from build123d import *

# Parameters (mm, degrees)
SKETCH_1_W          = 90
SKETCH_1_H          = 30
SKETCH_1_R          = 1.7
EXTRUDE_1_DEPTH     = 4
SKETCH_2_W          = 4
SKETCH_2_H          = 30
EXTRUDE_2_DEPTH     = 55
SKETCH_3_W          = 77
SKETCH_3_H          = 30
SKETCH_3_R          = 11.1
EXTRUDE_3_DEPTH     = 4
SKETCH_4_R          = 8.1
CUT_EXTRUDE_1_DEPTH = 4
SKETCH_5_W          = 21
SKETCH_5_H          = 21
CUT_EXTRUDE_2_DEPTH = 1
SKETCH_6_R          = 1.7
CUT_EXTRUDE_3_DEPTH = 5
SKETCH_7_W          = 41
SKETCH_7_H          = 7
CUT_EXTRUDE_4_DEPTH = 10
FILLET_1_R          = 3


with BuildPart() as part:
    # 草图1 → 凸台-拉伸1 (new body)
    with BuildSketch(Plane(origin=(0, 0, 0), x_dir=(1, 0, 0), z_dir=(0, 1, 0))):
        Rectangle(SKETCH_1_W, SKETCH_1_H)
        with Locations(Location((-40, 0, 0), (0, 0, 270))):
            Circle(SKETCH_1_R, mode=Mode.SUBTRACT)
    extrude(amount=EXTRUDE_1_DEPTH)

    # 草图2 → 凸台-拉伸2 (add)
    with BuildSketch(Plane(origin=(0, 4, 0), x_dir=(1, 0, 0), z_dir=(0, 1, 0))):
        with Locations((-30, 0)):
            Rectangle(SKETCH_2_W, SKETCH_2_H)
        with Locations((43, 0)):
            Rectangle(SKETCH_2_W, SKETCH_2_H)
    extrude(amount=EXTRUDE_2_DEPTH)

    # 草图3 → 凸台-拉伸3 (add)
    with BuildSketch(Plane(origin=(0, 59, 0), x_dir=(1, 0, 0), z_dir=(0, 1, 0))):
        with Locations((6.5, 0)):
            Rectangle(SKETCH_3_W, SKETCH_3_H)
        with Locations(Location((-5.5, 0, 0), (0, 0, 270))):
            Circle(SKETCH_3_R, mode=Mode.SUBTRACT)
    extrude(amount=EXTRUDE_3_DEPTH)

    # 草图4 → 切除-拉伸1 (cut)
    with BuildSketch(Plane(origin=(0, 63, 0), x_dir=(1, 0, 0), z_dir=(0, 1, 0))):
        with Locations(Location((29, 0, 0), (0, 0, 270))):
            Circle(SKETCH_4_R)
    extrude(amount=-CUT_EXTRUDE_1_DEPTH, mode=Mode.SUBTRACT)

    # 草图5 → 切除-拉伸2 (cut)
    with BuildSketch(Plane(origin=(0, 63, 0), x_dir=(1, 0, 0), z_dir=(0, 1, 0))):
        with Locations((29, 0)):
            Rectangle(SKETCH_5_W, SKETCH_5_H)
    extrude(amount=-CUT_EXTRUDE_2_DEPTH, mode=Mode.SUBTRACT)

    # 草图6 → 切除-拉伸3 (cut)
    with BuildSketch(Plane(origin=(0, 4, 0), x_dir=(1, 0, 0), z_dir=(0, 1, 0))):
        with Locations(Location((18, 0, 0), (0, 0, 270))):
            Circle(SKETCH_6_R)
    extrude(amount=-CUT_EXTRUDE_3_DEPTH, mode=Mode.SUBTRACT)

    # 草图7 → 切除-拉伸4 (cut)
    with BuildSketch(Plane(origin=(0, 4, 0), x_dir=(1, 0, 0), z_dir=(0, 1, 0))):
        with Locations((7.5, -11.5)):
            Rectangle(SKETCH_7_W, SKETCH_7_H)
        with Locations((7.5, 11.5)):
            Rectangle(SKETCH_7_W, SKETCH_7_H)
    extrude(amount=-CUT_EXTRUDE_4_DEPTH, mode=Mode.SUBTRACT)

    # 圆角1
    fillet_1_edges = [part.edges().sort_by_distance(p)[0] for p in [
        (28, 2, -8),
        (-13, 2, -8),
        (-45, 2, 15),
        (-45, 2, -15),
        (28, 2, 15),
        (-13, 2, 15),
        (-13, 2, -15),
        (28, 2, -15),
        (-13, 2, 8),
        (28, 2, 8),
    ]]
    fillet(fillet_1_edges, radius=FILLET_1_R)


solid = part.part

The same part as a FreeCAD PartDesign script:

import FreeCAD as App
import Part
import Sketcher

V = App.Vector
Q = App.Units.Quantity


def edges_at(feature, points):
    """Names of the edges that pass closest to the given points."""
    edges = feature.Shape.Edges
    near = lambda p: min(range(len(edges)), key=lambda i: edges[i].distToShape(Part.Vertex(*p))[0])
    return sorted({f"Edge{near(p) + 1}" for p in points})

doc = App.newDocument("Part")
body = doc.addObject("PartDesign::Body", "Body")

sketch1 = doc.addObject("Sketcher::SketchObject", "Sketch")
body.addObject(sketch1)
sketch1.AttachmentSupport = (doc.XZ_Plane, [""])
sketch1.MapMode = "FlatFace"
sketch1.addGeometry(Part.LineSegment(V(-45, -15, 0), V(-45, 15, 0)), False)
sketch1.addGeometry(Part.LineSegment(V(-45, 15, 0), V(45, 15, 0)), False)
sketch1.addGeometry(Part.LineSegment(V(45, 15, 0), V(45, -15, 0)), False)
sketch1.addGeometry(Part.LineSegment(V(45, -15, 0), V(-45, -15, 0)), False)
sketch1.addGeometry(Part.Circle(V(-40, 0, 0), V(0, 0, 1), 1.7), False)
sketch1.addConstraint(Sketcher.Constraint("Coincident", 0, 2, 1, 1))
sketch1.addConstraint(Sketcher.Constraint("Coincident", 1, 2, 2, 1))
sketch1.addConstraint(Sketcher.Constraint("Coincident", 2, 2, 3, 1))
sketch1.addConstraint(Sketcher.Constraint("Coincident", 3, 2, 0, 1))
sketch1.addConstraint(Sketcher.Constraint("Vertical", 0))
sketch1.addConstraint(Sketcher.Constraint("Horizontal", 1))
sketch1.addConstraint(Sketcher.Constraint("Vertical", 2))
sketch1.addConstraint(Sketcher.Constraint("Horizontal", 3))
sketch1.addConstraint(Sketcher.Constraint("Symmetric", 0, 2, 2, 2, -1, 1))
sketch1.addConstraint(Sketcher.Constraint("PointOnObject", 4, 3, -1))
sketch1.addConstraint(Sketcher.Constraint("Diameter", 4, Q("3.4 mm")))
sketch1.addConstraint(Sketcher.Constraint("DistanceX", 1, 1, 1, 2, Q("90 mm")))
sketch1.addConstraint(Sketcher.Constraint("DistanceY", 0, 1, 0, 2, Q("30 mm")))
sketch1.addConstraint(Sketcher.Constraint("DistanceX", 4, 3, -1, 1, Q("40 mm")))
pad1 = doc.addObject("PartDesign::Pad", "Pad")
body.addObject(pad1)
pad1.Profile = sketch1
pad1.Length = 4
pad1.Reversed = True

sketch2 = doc.addObject("Sketcher::SketchObject", "Sketch001")
body.addObject(sketch2)
sketch2.AttachmentSupport = (doc.XZ_Plane, [""])
sketch2.MapMode = "FlatFace"
sketch2.AttachmentOffset = App.Placement(V(0, 0, -4), App.Rotation())
sketch2.addGeometry(Part.LineSegment(V(-32, -15, 0), V(-32, 15, 0)), False)
sketch2.addGeometry(Part.LineSegment(V(-32, 15, 0), V(-28, 15, 0)), False)
sketch2.addGeometry(Part.LineSegment(V(-28, 15, 0), V(-28, -15, 0)), False)
sketch2.addGeometry(Part.LineSegment(V(-28, -15, 0), V(-32, -15, 0)), False)
sketch2.addGeometry(Part.LineSegment(V(41, -15, 0), V(41, 15, 0)), False)
sketch2.addGeometry(Part.LineSegment(V(41, 15, 0), V(45, 15, 0)), False)
sketch2.addGeometry(Part.LineSegment(V(45, 15, 0), V(45, -15, 0)), False)
sketch2.addGeometry(Part.LineSegment(V(45, -15, 0), V(41, -15, 0)), False)
sketch2.addConstraint(Sketcher.Constraint("Coincident", 0, 2, 1, 1))
sketch2.addConstraint(Sketcher.Constraint("Coincident", 1, 2, 2, 1))
sketch2.addConstraint(Sketcher.Constraint("Coincident", 2, 2, 3, 1))
sketch2.addConstraint(Sketcher.Constraint("Coincident", 3, 2, 0, 1))
sketch2.addConstraint(Sketcher.Constraint("Coincident", 4, 2, 5, 1))
sketch2.addConstraint(Sketcher.Constraint("Coincident", 5, 2, 6, 1))
sketch2.addConstraint(Sketcher.Constraint("Coincident", 6, 2, 7, 1))
sketch2.addConstraint(Sketcher.Constraint("Coincident", 7, 2, 4, 1))
sketch2.addConstraint(Sketcher.Constraint("Vertical", 0))
sketch2.addConstraint(Sketcher.Constraint("Horizontal", 1))
sketch2.addConstraint(Sketcher.Constraint("Vertical", 2))
sketch2.addConstraint(Sketcher.Constraint("Horizontal", 3))
sketch2.addConstraint(Sketcher.Constraint("Vertical", 4))
sketch2.addConstraint(Sketcher.Constraint("Horizontal", 5))
sketch2.addConstraint(Sketcher.Constraint("Vertical", 6))
sketch2.addConstraint(Sketcher.Constraint("Horizontal", 7))
sketch2.addConstraint(Sketcher.Constraint("Horizontal", 1, 2, 4, 2))
sketch2.addConstraint(Sketcher.Constraint("Horizontal", 3, 2, 6, 2))
sketch2.addConstraint(Sketcher.Constraint("Equal", 3, 5))
sketch2.addConstraint(Sketcher.Constraint("DistanceX", 1, 1, 1, 2, Q("4 mm")))
sketch2.addConstraint(Sketcher.Constraint("DistanceY", 0, 1, 0, 2, Q("30 mm")))
sketch2.addConstraint(Sketcher.Constraint("DistanceX", 0, 2, -1, 1, Q("32 mm")))
sketch2.addConstraint(Sketcher.Constraint("DistanceY", -1, 1, 0, 2, Q("15 mm")))
sketch2.addConstraint(Sketcher.Constraint("DistanceX", -1, 1, 4, 2, Q("41 mm")))
pad2 = doc.addObject("PartDesign::Pad", "Pad001")
body.addObject(pad2)
pad2.Profile = sketch2
pad2.Length = 55
pad2.Reversed = True

sketch3 = doc.addObject("Sketcher::SketchObject", "Sketch002")
body.addObject(sketch3)
sketch3.AttachmentSupport = (doc.XZ_Plane, [""])
sketch3.MapMode = "FlatFace"
sketch3.AttachmentOffset = App.Placement(V(0, 0, -59), App.Rotation())
sketch3.addGeometry(Part.LineSegment(V(-32, -15, 0), V(-32, 15, 0)), False)
sketch3.addGeometry(Part.LineSegment(V(-32, 15, 0), V(45, 15, 0)), False)
sketch3.addGeometry(Part.LineSegment(V(45, 15, 0), V(45, -15, 0)), False)
sketch3.addGeometry(Part.LineSegment(V(45, -15, 0), V(-32, -15, 0)), False)
sketch3.addGeometry(Part.Circle(V(-5.5, 0, 0), V(0, 0, 1), 11.1), False)
sketch3.addConstraint(Sketcher.Constraint("Coincident", 0, 2, 1, 1))
sketch3.addConstraint(Sketcher.Constraint("Coincident", 1, 2, 2, 1))
sketch3.addConstraint(Sketcher.Constraint("Coincident", 2, 2, 3, 1))
sketch3.addConstraint(Sketcher.Constraint("Coincident", 3, 2, 0, 1))
sketch3.addConstraint(Sketcher.Constraint("Vertical", 0))
sketch3.addConstraint(Sketcher.Constraint("Horizontal", 1))
sketch3.addConstraint(Sketcher.Constraint("Vertical", 2))
sketch3.addConstraint(Sketcher.Constraint("Horizontal", 3))
sketch3.addConstraint(Sketcher.Constraint("PointOnObject", 4, 3, -1))
sketch3.addConstraint(Sketcher.Constraint("Diameter", 4, Q("22.2 mm")))
sketch3.addConstraint(Sketcher.Constraint("DistanceX", 1, 1, 1, 2, Q("77 mm")))
sketch3.addConstraint(Sketcher.Constraint("DistanceY", 0, 1, 0, 2, Q("30 mm")))
sketch3.addConstraint(Sketcher.Constraint("DistanceX", 0, 2, -1, 1, Q("32 mm")))
sketch3.addConstraint(Sketcher.Constraint("DistanceY", -1, 1, 0, 2, Q("15 mm")))
sketch3.addConstraint(Sketcher.Constraint("DistanceX", 4, 3, -1, 1, Q("5.5 mm")))
pad3 = doc.addObject("PartDesign::Pad", "Pad002")
body.addObject(pad3)
pad3.Profile = sketch3
pad3.Length = 4
pad3.Reversed = True

sketch4 = doc.addObject("Sketcher::SketchObject", "Sketch003")
body.addObject(sketch4)
sketch4.AttachmentSupport = (doc.XZ_Plane, [""])
sketch4.MapMode = "FlatFace"
sketch4.AttachmentOffset = App.Placement(V(0, 0, -63), App.Rotation())
sketch4.addGeometry(Part.Circle(V(29, 0, 0), V(0, 0, 1), 8.1), False)
sketch4.addConstraint(Sketcher.Constraint("PointOnObject", 0, 3, -1))
sketch4.addConstraint(Sketcher.Constraint("Diameter", 0, Q("16.2 mm")))
sketch4.addConstraint(Sketcher.Constraint("DistanceX", -1, 1, 0, 3, Q("29 mm")))
pocket1 = doc.addObject("PartDesign::Pocket", "Pocket")
body.addObject(pocket1)
pocket1.Profile = sketch4
pocket1.Length = 4
pocket1.Reversed = True

sketch5 = doc.addObject("Sketcher::SketchObject", "Sketch004")
body.addObject(sketch5)
sketch5.AttachmentSupport = (doc.XZ_Plane, [""])
sketch5.MapMode = "FlatFace"
sketch5.AttachmentOffset = App.Placement(V(0, 0, -63), App.Rotation())
sketch5.addGeometry(Part.LineSegment(V(18.5, -10.5, 0), V(18.5, 10.5, 0)), False)
sketch5.addGeometry(Part.LineSegment(V(18.5, 10.5, 0), V(39.5, 10.5, 0)), False)
sketch5.addGeometry(Part.LineSegment(V(39.5, 10.5, 0), V(39.5, -10.5, 0)), False)
sketch5.addGeometry(Part.LineSegment(V(39.5, -10.5, 0), V(18.5, -10.5, 0)), False)
sketch5.addConstraint(Sketcher.Constraint("Coincident", 0, 2, 1, 1))
sketch5.addConstraint(Sketcher.Constraint("Coincident", 1, 2, 2, 1))
sketch5.addConstraint(Sketcher.Constraint("Coincident", 2, 2, 3, 1))
sketch5.addConstraint(Sketcher.Constraint("Coincident", 3, 2, 0, 1))
sketch5.addConstraint(Sketcher.Constraint("Vertical", 0))
sketch5.addConstraint(Sketcher.Constraint("Horizontal", 1))
sketch5.addConstraint(Sketcher.Constraint("Vertical", 2))
sketch5.addConstraint(Sketcher.Constraint("Horizontal", 3))
sketch5.addConstraint(Sketcher.Constraint("Equal", 3, 0))
sketch5.addConstraint(Sketcher.Constraint("DistanceX", 1, 1, 1, 2, Q("21 mm")))
sketch5.addConstraint(Sketcher.Constraint("DistanceX", -1, 1, 0, 2, Q("18.5 mm")))
sketch5.addConstraint(Sketcher.Constraint("DistanceY", -1, 1, 0, 2, Q("10.5 mm")))
pocket2 = doc.addObject("PartDesign::Pocket", "Pocket001")
body.addObject(pocket2)
pocket2.Profile = sketch5
pocket2.Length = 1
pocket2.Reversed = True

sketch6 = doc.addObject("Sketcher::SketchObject", "Sketch005")
body.addObject(sketch6)
sketch6.AttachmentSupport = (doc.XZ_Plane, [""])
sketch6.MapMode = "FlatFace"
sketch6.AttachmentOffset = App.Placement(V(0, 0, -4), App.Rotation())
sketch6.addGeometry(Part.Circle(V(18, 0, 0), V(0, 0, 1), 1.7), False)
sketch6.addConstraint(Sketcher.Constraint("PointOnObject", 0, 3, -1))
sketch6.addConstraint(Sketcher.Constraint("Diameter", 0, Q("3.4 mm")))
sketch6.addConstraint(Sketcher.Constraint("DistanceX", -1, 1, 0, 3, Q("18 mm")))
pocket3 = doc.addObject("PartDesign::Pocket", "Pocket002")
body.addObject(pocket3)
pocket3.Profile = sketch6
pocket3.Length = 5
pocket3.Reversed = True

sketch7 = doc.addObject("Sketcher::SketchObject", "Sketch006")
body.addObject(sketch7)
sketch7.AttachmentSupport = (doc.XZ_Plane, [""])
sketch7.MapMode = "FlatFace"
sketch7.AttachmentOffset = App.Placement(V(0, 0, -4), App.Rotation())
sketch7.addGeometry(Part.LineSegment(V(-13, 8, 0), V(-13, 15, 0)), False)
sketch7.addGeometry(Part.LineSegment(V(-13, 15, 0), V(28, 15, 0)), False)
sketch7.addGeometry(Part.LineSegment(V(28, 15, 0), V(28, 8, 0)), False)
sketch7.addGeometry(Part.LineSegment(V(28, 8, 0), V(-13, 8, 0)), False)
sketch7.addGeometry(Part.LineSegment(V(-13, -15, 0), V(-13, -8, 0)), False)
sketch7.addGeometry(Part.LineSegment(V(-13, -8, 0), V(28, -8, 0)), False)
sketch7.addGeometry(Part.LineSegment(V(28, -8, 0), V(28, -15, 0)), False)
sketch7.addGeometry(Part.LineSegment(V(28, -15, 0), V(-13, -15, 0)), False)
sketch7.addConstraint(Sketcher.Constraint("Coincident", 0, 2, 1, 1))
sketch7.addConstraint(Sketcher.Constraint("Coincident", 1, 2, 2, 1))
sketch7.addConstraint(Sketcher.Constraint("Coincident", 2, 2, 3, 1))
sketch7.addConstraint(Sketcher.Constraint("Coincident", 3, 2, 0, 1))
sketch7.addConstraint(Sketcher.Constraint("Coincident", 4, 2, 5, 1))
sketch7.addConstraint(Sketcher.Constraint("Coincident", 5, 2, 6, 1))
sketch7.addConstraint(Sketcher.Constraint("Coincident", 6, 2, 7, 1))
sketch7.addConstraint(Sketcher.Constraint("Coincident", 7, 2, 4, 1))
sketch7.addConstraint(Sketcher.Constraint("Vertical", 0))
sketch7.addConstraint(Sketcher.Constraint("Horizontal", 1))
sketch7.addConstraint(Sketcher.Constraint("Vertical", 2))
sketch7.addConstraint(Sketcher.Constraint("Horizontal", 3))
sketch7.addConstraint(Sketcher.Constraint("Vertical", 4))
sketch7.addConstraint(Sketcher.Constraint("Horizontal", 5))
sketch7.addConstraint(Sketcher.Constraint("Vertical", 6))
sketch7.addConstraint(Sketcher.Constraint("Horizontal", 7))
sketch7.addConstraint(Sketcher.Constraint("Symmetric", 3, 2, 4, 2, -1))
sketch7.addConstraint(Sketcher.Constraint("Symmetric", 1, 2, 6, 2, -1))
sketch7.addConstraint(Sketcher.Constraint("DistanceX", 1, 1, 1, 2, Q("41 mm")))
sketch7.addConstraint(Sketcher.Constraint("DistanceY", 0, 1, 0, 2, Q("7 mm")))
sketch7.addConstraint(Sketcher.Constraint("DistanceX", 0, 2, -1, 1, Q("13 mm")))
sketch7.addConstraint(Sketcher.Constraint("DistanceY", -1, 1, 0, 2, Q("15 mm")))
pocket4 = doc.addObject("PartDesign::Pocket", "Pocket003")
body.addObject(pocket4)
pocket4.Profile = sketch7
pocket4.Length = 10
pocket4.Reversed = True
doc.recompute()

fillet = doc.addObject("PartDesign::Fillet", "Fillet")
body.addObject(fillet)
fillet.Base = (pocket4, edges_at(pocket4, [
    (28, 2, -8),
    (-13, 2, -8),
    (-45, 2, 15),
    (-45, 2, -15),
    (28, 2, 15),
    (-13, 2, 15),
    (-13, 2, -15),
    (28, 2, -15),
    (-13, 2, 8),
    (28, 2, 8),
]))
fillet.Radius = 3

doc.recompute()
